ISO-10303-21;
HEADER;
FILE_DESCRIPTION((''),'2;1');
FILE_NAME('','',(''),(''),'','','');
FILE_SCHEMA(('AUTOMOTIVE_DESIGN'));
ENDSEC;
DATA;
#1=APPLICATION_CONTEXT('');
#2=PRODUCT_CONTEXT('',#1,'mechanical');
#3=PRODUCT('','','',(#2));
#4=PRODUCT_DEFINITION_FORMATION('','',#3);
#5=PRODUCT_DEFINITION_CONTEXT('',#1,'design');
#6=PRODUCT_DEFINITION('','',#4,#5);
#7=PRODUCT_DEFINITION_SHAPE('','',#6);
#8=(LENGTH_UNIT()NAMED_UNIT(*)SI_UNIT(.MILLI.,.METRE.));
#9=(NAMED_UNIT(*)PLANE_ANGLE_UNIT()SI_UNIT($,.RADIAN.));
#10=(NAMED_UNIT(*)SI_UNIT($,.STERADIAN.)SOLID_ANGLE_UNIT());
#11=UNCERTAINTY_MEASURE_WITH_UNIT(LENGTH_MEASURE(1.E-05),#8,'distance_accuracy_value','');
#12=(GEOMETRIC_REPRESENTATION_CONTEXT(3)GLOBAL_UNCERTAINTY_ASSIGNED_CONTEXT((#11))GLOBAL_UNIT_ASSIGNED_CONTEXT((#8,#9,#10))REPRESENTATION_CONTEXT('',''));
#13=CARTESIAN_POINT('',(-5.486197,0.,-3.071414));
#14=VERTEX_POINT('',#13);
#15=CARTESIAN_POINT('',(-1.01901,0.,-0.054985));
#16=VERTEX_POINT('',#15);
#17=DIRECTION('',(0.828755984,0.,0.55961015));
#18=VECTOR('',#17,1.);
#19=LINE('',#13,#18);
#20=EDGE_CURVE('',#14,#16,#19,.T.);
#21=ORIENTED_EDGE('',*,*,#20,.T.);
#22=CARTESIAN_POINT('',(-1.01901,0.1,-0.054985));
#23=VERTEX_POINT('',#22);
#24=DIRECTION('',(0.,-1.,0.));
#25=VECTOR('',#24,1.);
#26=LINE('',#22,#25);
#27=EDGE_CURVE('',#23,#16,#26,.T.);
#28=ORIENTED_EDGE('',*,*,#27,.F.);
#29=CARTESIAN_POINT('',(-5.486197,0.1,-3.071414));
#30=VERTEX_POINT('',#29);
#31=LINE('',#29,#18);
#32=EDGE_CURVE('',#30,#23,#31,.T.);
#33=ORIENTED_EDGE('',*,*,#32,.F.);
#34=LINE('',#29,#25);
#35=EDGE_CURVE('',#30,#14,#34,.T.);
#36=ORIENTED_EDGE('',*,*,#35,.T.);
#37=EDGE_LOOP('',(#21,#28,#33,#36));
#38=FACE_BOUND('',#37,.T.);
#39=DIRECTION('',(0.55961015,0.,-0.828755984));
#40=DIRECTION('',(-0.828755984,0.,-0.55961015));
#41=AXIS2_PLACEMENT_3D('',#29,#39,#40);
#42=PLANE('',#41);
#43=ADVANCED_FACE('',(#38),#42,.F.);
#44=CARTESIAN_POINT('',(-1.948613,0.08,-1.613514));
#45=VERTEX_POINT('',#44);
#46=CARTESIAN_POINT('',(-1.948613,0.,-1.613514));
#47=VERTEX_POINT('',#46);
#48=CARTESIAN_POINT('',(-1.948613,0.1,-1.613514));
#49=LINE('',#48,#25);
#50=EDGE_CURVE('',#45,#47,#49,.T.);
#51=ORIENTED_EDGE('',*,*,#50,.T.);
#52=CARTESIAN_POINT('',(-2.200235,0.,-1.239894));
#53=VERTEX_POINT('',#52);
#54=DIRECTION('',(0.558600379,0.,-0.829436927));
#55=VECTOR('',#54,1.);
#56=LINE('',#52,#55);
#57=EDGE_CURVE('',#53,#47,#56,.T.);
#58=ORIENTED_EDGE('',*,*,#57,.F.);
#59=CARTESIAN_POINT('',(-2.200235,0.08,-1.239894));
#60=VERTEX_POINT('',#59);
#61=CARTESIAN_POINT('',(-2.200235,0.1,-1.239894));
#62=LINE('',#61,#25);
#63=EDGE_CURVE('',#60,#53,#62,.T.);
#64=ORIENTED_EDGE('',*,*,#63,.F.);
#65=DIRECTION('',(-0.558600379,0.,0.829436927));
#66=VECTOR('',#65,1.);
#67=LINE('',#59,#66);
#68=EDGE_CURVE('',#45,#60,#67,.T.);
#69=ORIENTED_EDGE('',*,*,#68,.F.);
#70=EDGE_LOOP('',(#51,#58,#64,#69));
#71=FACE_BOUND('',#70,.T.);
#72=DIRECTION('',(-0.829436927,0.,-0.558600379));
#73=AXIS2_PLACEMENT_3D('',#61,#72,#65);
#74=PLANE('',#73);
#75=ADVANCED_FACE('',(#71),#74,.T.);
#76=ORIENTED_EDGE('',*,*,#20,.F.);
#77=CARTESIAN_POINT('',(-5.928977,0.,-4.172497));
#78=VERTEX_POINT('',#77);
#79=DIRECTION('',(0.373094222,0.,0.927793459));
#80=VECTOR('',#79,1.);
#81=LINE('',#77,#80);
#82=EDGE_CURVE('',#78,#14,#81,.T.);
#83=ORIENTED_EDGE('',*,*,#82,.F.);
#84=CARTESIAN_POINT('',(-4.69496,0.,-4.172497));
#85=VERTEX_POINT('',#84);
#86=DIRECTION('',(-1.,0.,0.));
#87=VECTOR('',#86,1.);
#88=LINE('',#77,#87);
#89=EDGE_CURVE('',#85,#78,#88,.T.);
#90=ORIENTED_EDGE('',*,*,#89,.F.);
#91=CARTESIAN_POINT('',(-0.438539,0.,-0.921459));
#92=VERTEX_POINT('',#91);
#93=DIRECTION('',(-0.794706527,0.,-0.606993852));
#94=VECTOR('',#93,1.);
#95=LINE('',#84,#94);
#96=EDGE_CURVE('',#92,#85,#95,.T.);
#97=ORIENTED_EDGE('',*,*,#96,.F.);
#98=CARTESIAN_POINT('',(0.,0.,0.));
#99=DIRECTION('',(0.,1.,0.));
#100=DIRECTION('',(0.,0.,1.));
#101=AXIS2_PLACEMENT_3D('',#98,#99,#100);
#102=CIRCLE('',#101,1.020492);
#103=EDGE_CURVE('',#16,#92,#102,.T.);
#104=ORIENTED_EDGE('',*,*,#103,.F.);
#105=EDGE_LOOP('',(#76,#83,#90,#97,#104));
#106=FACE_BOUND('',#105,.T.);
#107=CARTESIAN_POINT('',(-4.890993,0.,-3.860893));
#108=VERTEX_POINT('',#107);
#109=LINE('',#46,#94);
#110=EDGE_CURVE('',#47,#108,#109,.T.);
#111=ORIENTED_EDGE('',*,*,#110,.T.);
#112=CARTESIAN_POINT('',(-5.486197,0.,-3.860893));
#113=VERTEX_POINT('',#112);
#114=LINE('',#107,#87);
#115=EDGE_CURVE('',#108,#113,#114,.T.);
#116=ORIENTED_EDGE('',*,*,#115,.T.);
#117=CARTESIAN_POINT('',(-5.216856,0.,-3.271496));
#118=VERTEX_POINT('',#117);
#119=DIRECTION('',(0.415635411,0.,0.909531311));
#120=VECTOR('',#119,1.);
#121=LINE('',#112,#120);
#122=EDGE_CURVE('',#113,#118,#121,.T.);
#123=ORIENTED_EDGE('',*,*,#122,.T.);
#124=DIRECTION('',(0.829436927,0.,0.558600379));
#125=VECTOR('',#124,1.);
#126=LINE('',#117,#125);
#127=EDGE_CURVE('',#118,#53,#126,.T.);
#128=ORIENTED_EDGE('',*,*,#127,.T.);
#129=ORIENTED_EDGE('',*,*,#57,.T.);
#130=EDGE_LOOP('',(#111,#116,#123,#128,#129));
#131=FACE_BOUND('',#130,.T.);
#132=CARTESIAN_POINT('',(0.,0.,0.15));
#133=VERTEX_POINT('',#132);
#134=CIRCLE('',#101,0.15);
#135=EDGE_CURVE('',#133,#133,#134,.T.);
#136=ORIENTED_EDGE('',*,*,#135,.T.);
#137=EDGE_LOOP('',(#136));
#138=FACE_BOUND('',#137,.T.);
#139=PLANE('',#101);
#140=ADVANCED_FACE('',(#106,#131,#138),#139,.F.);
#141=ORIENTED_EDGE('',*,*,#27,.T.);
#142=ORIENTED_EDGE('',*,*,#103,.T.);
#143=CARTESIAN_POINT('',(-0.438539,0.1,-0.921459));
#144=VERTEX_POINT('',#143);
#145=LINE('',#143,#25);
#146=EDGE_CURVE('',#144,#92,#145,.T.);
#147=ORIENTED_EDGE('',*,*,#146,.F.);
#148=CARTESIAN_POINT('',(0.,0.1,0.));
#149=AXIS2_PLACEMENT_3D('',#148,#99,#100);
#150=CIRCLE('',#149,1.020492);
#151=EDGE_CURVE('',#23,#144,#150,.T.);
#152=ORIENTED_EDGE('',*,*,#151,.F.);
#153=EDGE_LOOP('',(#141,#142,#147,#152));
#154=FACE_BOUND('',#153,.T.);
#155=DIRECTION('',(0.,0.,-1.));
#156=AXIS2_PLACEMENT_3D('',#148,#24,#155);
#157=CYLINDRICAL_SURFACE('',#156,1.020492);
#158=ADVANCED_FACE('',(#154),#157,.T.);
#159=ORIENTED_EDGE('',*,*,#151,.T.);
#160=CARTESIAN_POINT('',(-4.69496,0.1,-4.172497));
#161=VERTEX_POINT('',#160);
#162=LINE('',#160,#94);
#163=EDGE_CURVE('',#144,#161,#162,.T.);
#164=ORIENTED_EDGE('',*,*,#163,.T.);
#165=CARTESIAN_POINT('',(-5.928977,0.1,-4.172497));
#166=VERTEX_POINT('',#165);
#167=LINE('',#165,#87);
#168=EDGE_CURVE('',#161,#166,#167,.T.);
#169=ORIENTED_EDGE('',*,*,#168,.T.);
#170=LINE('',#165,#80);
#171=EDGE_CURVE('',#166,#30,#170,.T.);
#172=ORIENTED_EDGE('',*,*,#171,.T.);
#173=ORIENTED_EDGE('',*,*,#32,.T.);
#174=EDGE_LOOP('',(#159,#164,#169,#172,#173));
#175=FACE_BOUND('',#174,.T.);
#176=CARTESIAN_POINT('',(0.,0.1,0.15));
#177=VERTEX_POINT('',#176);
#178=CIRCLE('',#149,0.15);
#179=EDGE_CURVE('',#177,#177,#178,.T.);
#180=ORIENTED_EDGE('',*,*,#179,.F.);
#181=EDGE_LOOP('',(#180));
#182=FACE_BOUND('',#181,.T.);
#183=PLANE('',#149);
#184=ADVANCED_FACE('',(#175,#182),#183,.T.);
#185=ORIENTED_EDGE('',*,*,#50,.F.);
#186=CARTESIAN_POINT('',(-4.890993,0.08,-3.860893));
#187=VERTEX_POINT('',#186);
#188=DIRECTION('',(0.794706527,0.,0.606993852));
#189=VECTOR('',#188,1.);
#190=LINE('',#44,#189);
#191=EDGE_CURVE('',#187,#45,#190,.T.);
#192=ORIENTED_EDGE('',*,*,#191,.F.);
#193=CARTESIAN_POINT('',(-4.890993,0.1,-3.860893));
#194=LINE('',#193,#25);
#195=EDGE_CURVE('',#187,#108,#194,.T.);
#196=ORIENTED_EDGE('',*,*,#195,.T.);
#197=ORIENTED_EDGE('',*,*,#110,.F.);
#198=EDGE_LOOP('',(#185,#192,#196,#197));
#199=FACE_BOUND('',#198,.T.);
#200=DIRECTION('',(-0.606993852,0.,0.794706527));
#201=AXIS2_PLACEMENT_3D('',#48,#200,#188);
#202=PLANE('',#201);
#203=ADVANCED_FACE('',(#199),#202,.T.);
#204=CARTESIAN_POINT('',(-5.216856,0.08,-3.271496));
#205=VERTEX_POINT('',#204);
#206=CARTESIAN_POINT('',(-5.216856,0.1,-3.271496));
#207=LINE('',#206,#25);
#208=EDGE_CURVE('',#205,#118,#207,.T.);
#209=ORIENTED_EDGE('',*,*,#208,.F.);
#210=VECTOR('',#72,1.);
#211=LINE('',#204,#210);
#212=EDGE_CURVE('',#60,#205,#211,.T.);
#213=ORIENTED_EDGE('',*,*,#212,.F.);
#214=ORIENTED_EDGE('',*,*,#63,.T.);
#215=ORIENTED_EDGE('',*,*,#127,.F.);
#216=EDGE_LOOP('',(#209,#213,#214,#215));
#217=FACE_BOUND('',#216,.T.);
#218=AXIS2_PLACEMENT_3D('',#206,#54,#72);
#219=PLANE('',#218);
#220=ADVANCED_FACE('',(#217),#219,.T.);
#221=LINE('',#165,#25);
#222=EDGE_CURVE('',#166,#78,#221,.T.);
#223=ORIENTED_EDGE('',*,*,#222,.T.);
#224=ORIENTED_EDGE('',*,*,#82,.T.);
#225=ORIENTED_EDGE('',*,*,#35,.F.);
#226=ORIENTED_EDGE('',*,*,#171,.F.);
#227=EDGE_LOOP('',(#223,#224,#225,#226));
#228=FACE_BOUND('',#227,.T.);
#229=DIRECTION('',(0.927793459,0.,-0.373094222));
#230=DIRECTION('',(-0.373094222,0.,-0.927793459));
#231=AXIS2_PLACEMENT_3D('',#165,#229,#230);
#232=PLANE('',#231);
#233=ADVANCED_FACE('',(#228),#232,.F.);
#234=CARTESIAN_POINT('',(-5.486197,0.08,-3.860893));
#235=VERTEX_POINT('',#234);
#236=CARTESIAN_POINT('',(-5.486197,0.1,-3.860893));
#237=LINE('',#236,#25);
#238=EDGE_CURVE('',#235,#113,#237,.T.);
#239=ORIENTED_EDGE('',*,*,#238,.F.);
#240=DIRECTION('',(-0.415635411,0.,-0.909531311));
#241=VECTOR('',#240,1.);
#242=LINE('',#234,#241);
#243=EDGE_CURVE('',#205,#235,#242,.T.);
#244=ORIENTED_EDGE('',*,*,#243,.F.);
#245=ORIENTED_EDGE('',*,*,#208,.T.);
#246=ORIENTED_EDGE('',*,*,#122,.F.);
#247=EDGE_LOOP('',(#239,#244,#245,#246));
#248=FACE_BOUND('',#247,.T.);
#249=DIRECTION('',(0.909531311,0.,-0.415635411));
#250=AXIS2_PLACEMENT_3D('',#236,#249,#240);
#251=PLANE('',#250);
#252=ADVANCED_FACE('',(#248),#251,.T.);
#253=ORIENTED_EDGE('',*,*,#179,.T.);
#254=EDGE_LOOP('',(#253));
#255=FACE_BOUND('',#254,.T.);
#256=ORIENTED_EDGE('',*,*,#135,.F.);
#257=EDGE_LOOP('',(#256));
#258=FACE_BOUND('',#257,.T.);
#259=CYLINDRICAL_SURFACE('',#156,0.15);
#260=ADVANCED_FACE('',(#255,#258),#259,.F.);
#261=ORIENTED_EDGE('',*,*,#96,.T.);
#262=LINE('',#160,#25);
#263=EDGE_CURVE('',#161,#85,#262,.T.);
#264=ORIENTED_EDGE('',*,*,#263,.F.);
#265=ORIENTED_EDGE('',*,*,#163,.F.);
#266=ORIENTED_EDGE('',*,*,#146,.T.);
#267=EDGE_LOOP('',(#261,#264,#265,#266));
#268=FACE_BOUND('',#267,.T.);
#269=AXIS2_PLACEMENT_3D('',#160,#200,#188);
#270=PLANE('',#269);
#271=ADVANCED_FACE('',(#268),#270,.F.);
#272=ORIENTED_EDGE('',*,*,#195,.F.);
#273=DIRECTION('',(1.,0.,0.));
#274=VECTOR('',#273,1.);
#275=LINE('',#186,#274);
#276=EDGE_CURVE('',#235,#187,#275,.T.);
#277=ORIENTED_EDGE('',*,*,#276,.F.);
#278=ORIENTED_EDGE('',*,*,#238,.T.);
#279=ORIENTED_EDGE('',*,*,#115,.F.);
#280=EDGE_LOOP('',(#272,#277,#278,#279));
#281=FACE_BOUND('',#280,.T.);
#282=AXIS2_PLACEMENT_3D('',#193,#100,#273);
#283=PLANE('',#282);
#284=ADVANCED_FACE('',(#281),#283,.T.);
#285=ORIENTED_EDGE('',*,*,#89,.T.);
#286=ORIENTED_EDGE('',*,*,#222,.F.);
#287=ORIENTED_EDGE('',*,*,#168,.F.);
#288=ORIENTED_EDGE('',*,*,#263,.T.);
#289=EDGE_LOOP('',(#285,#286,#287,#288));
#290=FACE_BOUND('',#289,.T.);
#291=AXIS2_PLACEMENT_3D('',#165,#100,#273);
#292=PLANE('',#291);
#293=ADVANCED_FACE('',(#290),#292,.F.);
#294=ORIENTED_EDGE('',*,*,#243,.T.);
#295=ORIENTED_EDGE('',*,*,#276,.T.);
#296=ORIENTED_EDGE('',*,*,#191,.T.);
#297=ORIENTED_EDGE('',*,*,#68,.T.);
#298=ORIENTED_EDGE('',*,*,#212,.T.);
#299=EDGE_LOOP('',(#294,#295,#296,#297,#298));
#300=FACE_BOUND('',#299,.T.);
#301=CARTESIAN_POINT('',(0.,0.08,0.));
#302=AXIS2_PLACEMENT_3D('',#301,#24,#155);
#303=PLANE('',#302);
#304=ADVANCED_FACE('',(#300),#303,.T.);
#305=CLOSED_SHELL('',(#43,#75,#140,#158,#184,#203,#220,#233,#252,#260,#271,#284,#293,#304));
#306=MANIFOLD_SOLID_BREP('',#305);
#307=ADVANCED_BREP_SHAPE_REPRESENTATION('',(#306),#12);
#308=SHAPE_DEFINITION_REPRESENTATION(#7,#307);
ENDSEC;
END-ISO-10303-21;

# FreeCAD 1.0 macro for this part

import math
import FreeCAD as App
import Part
import Sketcher

V = App.Vector
Q = App.Units.Quantity

doc = App.newDocument("Part")
params = doc.addObject("Spreadsheet::Sheet", "Params")
for row, (alias, value) in enumerate([
    ("sketch1_diameter", "0.3 mm"),
    ("pad1_length", "0.1 mm"),
    ("pad2_length", "0.02 mm"),
], start=1):
    params.set(f"A{row}", alias)
    params.set(f"B{row}", "=" + value)
    params.setAlias(f"B{row}", alias)

body = doc.addObject("PartDesign::Body", "Body")

# Sketch on XZ plane
sketch1 = doc.addObject("Sketcher::SketchObject", "Sketch")
body.addObject(sketch1)
sketch1.AttachmentSupport = (doc.XZ_Plane, [""])
sketch1.MapMode = "FlatFace"
sketch1.addGeometry([
    Part.LineSegment(V(-5.93, -4.17, 0), V(-5.49, -3.07, 0)),  # 0
    Part.LineSegment(V(-5.49, -3.07, 0), V(-1.02, -0.05, 0)),  # 1
    Part.ArcOfCircle(Part.Circle(V(0, 0, 0), V(0, 0, 1), 1.02), math.radians(-115), math.radians(183)),  # 2
    Part.LineSegment(V(-0.44, -0.92, 0), V(-4.69, -4.17, 0)),  # 3
    Part.LineSegment(V(-4.69, -4.17, 0), V(-5.93, -4.17, 0)),  # 4
    Part.Circle(V(0, 0, 0), V(0, 0, 1), 0.15),  # 5
    Part.LineSegment(V(-5.22, -3.27, 0), V(-5.49, -3.86, 0)),  # 6
    Part.LineSegment(V(-5.49, -3.86, 0), V(-4.89, -3.86, 0)),  # 7
    Part.LineSegment(V(-4.89, -3.86, 0), V(-1.95, -1.61, 0)),  # 8
    Part.LineSegment(V(-1.95, -1.61, 0), V(-2.2, -1.24, 0)),  # 9
    Part.LineSegment(V(-2.2, -1.24, 0), V(-5.22, -3.27, 0)),  # 10
], False)
sketch1.addConstraint([
    Sketcher.Constraint("Coincident", 0, 2, 1, 1),
    Sketcher.Constraint("Coincident", 1, 2, 2, 2),
    Sketcher.Constraint("Coincident", 2, 1, 3, 1),
    Sketcher.Constraint("Coincident", 3, 2, 4, 1),
    Sketcher.Constraint("Coincident", 4, 2, 0, 1),
    Sketcher.Constraint("Coincident", 6, 2, 7, 1),
    Sketcher.Constraint("Coincident", 7, 2, 8, 1),
    Sketcher.Constraint("Coincident", 8, 2, 9, 1),
    Sketcher.Constraint("Coincident", 9, 2, 10, 1),
    Sketcher.Constraint("Coincident", 10, 2, 6, 1),
    Sketcher.Constraint("Horizontal", 4),
    Sketcher.Constraint("Horizontal", 7),
    Sketcher.Constraint("Coincident", 2, 3, -1, 1),
    Sketcher.Constraint("Coincident", 5, 3, -1, 1),
    Sketcher.Constraint("Parallel", 3, 8),
    Sketcher.Constraint("Perpendicular", 9, 10),
    Sketcher.Constraint("Vertical", 0, 2, 6, 2),
    Sketcher.Constraint("Diameter", 5, Q("0.3 mm")),
    Sketcher.Constraint("Radius", 2, Q("1.020492 mm")),
    Sketcher.Constraint("DistanceY", 3, 2, 10, 2, Q("0.901001 mm")),
    Sketcher.Constraint("Distance", 9, Q("0.45045 mm")),
    Sketcher.Constraint("Distance", 10, Q("3.636951 mm")),
    Sketcher.Constraint("DistanceX", 4, 2, 4, 1, Q("1.234017 mm")),
    Sketcher.Constraint("DistanceX", 7, 1, 7, 2, Q("0.595204 mm")),
    Sketcher.Constraint("DistanceX", 1, 2, -1, 1, Q("1.01901 mm")),
    Sketcher.Constraint("DistanceX", 2, 1, -1, 1, Q("0.438539 mm")),
    Sketcher.Constraint("DistanceX", 3, 2, -1, 1, Q("4.69496 mm")),
    Sketcher.Constraint("DistanceY", 0, 2, 1, 2, Q("3.016429 mm")),
    Sketcher.Constraint("DistanceX", 0, 2, 2, 1, Q("5.047658 mm")),
    Sketcher.Constraint("DistanceY", 6, 2, 0, 2, Q("0.789479 mm")),
    Sketcher.Constraint("DistanceY", 8, 2, 1, 2, Q("1.558529 mm")),
    Sketcher.Constraint("DistanceX", 7, 2, 8, 2, Q("2.94238 mm")),
])
sketch1.setExpression("Constraints[17]", "Params.sketch1_diameter")
pad1 = doc.addObject("PartDesign::Pad", "Pad")
body.addObject(pad1)
pad1.Profile = sketch1
pad1.setExpression("Length", "Params.pad1_length")
pad1.Reversed = True

# Sketch on XZ plane
sketch2 = doc.addObject("Sketcher::SketchObject", "Sketch001")
body.addObject(sketch2)
sketch2.AttachmentSupport = (doc.XZ_Plane, [""])
sketch2.MapMode = "FlatFace"
sketch2.AttachmentOffset = App.Placement(V(0, 0, -0.1), App.Rotation())
sketch2.addGeometry([
    Part.LineSegment(V(-4.6, -4, 0), V(-5.7, -4.1, 0)),  # 0
    Part.LineSegment(V(-5.7, -4.1, 0), V(-5.4, -3.2, 0)),  # 1
    Part.LineSegment(V(-5.4, -3.2, 0), V(-2, -1, 0)),  # 2
    Part.LineSegment(V(-2, -1, 0), V(-1.6, -1.5, 0)),  # 3
    Part.LineSegment(V(-1.6, -1.5, 0), V(-4.6, -4, 0)),  # 4
], False)
sketch2.addConstraint([
    Sketcher.Constraint("Coincident", 0, 2, 1, 1),
    Sketcher.Constraint("Coincident", 1, 2, 2, 1),
    Sketcher.Constraint("Coincident", 2, 2, 3, 1),
    Sketcher.Constraint("Coincident", 3, 2, 4, 1),
    Sketcher.Constraint("Coincident", 4, 2, 0, 1),
    Sketcher.Constraint("DistanceX", 0, 2, 1, 2, Q("0.281401 mm")),
    Sketcher.Constraint("DistanceY", 4, 2, 3, 2, Q("2.422802 mm")),
    Sketcher.Constraint("DistanceY", 4, 2, 2, 2, Q("2.971599 mm")),
    Sketcher.Constraint("Distance", 0, Q("1.068079 mm")),
    Sketcher.Constraint("Distance", 1, Q("0.934262 mm")),
    Sketcher.Constraint("Distance", 3, Q("0.737981 mm")),
    Sketcher.Constraint("Distance", 4, Q("3.899639 mm")),
    Sketcher.Constraint("DistanceY", 1, 2, -1, 1, Q("3.16996 mm")),
    Sketcher.Constraint("DistanceX", 2, 2, -1, 1, Q("2.044962 mm")),
    Sketcher.Constraint("DistanceY", 2, 2, -1, 1, Q("0.98062 mm")),
])
pad2 = doc.addObject("PartDesign::Pad", "Pad001")
body.addObject(pad2)
pad2.Profile = sketch2
pad2.setExpression("Length", "Params.pad2_length")

doc.recompute()
